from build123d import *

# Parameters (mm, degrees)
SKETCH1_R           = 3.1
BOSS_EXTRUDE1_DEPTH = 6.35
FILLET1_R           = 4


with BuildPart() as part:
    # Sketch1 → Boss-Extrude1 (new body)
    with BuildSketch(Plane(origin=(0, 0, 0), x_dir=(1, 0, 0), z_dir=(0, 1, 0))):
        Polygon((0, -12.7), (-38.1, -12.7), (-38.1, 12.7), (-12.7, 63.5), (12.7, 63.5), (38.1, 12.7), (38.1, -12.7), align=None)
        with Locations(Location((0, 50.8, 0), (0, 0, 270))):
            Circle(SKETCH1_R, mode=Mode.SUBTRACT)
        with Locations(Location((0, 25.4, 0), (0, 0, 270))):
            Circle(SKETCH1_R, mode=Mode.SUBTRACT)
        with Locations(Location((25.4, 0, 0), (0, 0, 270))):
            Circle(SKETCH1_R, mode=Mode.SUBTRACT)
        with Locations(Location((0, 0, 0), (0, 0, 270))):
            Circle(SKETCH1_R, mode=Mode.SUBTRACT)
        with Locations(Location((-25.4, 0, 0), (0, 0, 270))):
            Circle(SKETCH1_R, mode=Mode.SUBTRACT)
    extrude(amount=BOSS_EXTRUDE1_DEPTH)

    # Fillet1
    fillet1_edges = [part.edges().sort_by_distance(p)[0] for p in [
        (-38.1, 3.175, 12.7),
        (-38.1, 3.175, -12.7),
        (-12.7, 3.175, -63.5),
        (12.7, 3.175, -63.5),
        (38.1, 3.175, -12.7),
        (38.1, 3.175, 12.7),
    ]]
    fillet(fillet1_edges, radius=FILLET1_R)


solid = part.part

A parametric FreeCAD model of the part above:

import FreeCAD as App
import Part
import Sketcher

V = App.Vector
Q = App.Units.Quantity


def edges_at(feature, points):
    """Names of the edges that pass closest to the given points."""
    edges = feature.Shape.Edges
    near = lambda p: min(range(len(edges)), key=lambda i: edges[i].distToShape(Part.Vertex(*p))[0])
    return sorted({f"Edge{near(p) + 1}" for p in points})

doc = App.newDocument("Part")
body = doc.addObject("PartDesign::Body", "Body")

sketch1 = body.newObject("Sketcher::SketchObject", "Sketch")
sketch1.AttachmentSupport = (doc.getObject("XZ_Plane"), [""])
sketch1.MapMode = "FlatFace"
sketch1.addGeometry([
    Part.LineSegment(V(-38.1, 12.7, 0), V(38.1, 12.7, 0)),
    Part.LineSegment(V(38.1, 12.7, 0), V(38.1, -12.7, 0)),
    Part.LineSegment(V(38.1, -12.7, 0), V(12.7, -63.5, 0)),
    Part.LineSegment(V(12.7, -63.5, 0), V(-12.7, -63.5, 0)),
    Part.LineSegment(V(-12.7, -63.5, 0), V(-38.1, -12.7, 0)),
    Part.LineSegment(V(-38.1, -12.7, 0), V(-38.1, 12.7, 0)),
    Part.Circle(V(25.4, 0, 0), V(0, 0, 1), 3.1),
    Part.Circle(V(0, 0, 0), V(0, 0, 1), 3.1),
    Part.Circle(V(-25.4, 0, 0), V(0, 0, 1), 3.1),
    Part.Circle(V(0, -25.4, 0), V(0, 0, 1), 3.1),
    Part.Circle(V(0, -50.8, 0), V(0, 0, 1), 3.1),
], False)
sketch1.addConstraint([
    Sketcher.Constraint("Coincident", 0, 2, 1, 1),
    Sketcher.Constraint("Coincident", 1, 2, 2, 1),
    Sketcher.Constraint("Coincident", 2, 2, 3, 1),
    Sketcher.Constraint("Coincident", 3, 2, 4, 1),
    Sketcher.Constraint("Coincident", 4, 2, 5, 1),
    Sketcher.Constraint("Coincident", 5, 2, 0, 1),
    Sketcher.Constraint("Horizontal", 0),
    Sketcher.Constraint("Vertical", 1),
    Sketcher.Constraint("Horizontal", 3),
    Sketcher.Constraint("Vertical", 5),
    Sketcher.Constraint("Coincident", 7, 3, -1, 1),
    Sketcher.Constraint("Equal", 6, 7),
    Sketcher.Constraint("Equal", 7, 8),
    Sketcher.Constraint("Equal", 8, 9),
    Sketcher.Constraint("Equal", 9, 10),
    Sketcher.Constraint("Symmetric", 6, 3, 8, 3, -1, 1),
    Sketcher.Constraint("Symmetric", 0, 2, 4, 2, -1, 1),
    Sketcher.Constraint("PointOnObject", 6, 3, -1),
    Sketcher.Constraint("PointOnObject", 9, 3, -2),
    Sketcher.Constraint("PointOnObject", 10, 3, -2),
    Sketcher.Constraint("Horizontal", 1, 2, 4, 2),
    Sketcher.Constraint("Equal", 3, 1),
    Sketcher.Constraint("Equal", 2, 4),
    Sketcher.Constraint("DistanceX", 0, 1, 0, 2, Q("3 in")),
    Sketcher.Constraint("DistanceX", 3, 2, 3, 1, Q("1 in")),
    Sketcher.Constraint("DistanceX", -1, 1, 6, 3, Q("1 in")),
    Sketcher.Constraint("DistanceY", 9, 3, -1, 1, Q("1 in")),
    Sketcher.Constraint("DistanceY", 10, 3, -1, 1, Q("2 in")),
    Sketcher.Constraint("DistanceY", 2, 2, 1, 2, Q("2 in")),
    Sketcher.Constraint("Diameter", 6, Q("6.2 mm")),
])
pad1 = body.newObject("PartDesign::Pad", "Pad")
pad1.Profile = sketch1
pad1.Length = Q("0.25 in")
pad1.Reversed = True
doc.recompute()

fillet = body.newObject("PartDesign::Fillet", "Fillet")
fillet.Base = (pad1, edges_at(pad1, [
    (-38.1, 3.175, 12.7),
    (-38.1, 3.175, -12.7),
    (-12.7, 3.175, -63.5),
    (12.7, 3.175, -63.5),
    (38.1, 3.175, -12.7),
    (38.1, 3.175, 12.7),
]))
fillet.Radius = 4

doc.recompute()
